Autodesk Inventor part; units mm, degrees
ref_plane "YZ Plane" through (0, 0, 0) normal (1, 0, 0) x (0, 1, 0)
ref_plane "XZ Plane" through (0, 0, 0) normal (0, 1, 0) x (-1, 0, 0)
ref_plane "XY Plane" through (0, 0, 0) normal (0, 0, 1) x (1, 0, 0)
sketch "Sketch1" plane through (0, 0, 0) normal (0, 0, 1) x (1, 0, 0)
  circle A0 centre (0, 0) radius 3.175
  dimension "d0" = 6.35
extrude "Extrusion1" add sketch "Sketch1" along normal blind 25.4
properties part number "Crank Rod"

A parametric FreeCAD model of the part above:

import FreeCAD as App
import Part
import Sketcher
from FreeCAD import Vector
Q = App.Units.Quantity

doc = App.newDocument("Part")
body = doc.addObject("PartDesign::Body", "Body")

# Sketch on XY plane
sketch1 = doc.addObject("Sketcher::SketchObject", "Sketch")
body.addObject(sketch1)
sketch1.AttachmentSupport = (doc.XY_Plane, [""])
sketch1.MapMode = "FlatFace"
sketch1.addGeometry(Part.Circle(Vector(0, 0, 0), Vector(0, 0, 1), 3.2), False)
sketch1.addConstraint([
    Sketcher.Constraint("Coincident", 0, 3, -1, 1),
    Sketcher.Constraint("Diameter", 0, Q("0.25 in")),
])
pad1 = doc.addObject("PartDesign::Pad", "Pad")
body.addObject(pad1)
pad1.Profile = sketch1
pad1.Length = Q("1 in")

doc.recompute()
